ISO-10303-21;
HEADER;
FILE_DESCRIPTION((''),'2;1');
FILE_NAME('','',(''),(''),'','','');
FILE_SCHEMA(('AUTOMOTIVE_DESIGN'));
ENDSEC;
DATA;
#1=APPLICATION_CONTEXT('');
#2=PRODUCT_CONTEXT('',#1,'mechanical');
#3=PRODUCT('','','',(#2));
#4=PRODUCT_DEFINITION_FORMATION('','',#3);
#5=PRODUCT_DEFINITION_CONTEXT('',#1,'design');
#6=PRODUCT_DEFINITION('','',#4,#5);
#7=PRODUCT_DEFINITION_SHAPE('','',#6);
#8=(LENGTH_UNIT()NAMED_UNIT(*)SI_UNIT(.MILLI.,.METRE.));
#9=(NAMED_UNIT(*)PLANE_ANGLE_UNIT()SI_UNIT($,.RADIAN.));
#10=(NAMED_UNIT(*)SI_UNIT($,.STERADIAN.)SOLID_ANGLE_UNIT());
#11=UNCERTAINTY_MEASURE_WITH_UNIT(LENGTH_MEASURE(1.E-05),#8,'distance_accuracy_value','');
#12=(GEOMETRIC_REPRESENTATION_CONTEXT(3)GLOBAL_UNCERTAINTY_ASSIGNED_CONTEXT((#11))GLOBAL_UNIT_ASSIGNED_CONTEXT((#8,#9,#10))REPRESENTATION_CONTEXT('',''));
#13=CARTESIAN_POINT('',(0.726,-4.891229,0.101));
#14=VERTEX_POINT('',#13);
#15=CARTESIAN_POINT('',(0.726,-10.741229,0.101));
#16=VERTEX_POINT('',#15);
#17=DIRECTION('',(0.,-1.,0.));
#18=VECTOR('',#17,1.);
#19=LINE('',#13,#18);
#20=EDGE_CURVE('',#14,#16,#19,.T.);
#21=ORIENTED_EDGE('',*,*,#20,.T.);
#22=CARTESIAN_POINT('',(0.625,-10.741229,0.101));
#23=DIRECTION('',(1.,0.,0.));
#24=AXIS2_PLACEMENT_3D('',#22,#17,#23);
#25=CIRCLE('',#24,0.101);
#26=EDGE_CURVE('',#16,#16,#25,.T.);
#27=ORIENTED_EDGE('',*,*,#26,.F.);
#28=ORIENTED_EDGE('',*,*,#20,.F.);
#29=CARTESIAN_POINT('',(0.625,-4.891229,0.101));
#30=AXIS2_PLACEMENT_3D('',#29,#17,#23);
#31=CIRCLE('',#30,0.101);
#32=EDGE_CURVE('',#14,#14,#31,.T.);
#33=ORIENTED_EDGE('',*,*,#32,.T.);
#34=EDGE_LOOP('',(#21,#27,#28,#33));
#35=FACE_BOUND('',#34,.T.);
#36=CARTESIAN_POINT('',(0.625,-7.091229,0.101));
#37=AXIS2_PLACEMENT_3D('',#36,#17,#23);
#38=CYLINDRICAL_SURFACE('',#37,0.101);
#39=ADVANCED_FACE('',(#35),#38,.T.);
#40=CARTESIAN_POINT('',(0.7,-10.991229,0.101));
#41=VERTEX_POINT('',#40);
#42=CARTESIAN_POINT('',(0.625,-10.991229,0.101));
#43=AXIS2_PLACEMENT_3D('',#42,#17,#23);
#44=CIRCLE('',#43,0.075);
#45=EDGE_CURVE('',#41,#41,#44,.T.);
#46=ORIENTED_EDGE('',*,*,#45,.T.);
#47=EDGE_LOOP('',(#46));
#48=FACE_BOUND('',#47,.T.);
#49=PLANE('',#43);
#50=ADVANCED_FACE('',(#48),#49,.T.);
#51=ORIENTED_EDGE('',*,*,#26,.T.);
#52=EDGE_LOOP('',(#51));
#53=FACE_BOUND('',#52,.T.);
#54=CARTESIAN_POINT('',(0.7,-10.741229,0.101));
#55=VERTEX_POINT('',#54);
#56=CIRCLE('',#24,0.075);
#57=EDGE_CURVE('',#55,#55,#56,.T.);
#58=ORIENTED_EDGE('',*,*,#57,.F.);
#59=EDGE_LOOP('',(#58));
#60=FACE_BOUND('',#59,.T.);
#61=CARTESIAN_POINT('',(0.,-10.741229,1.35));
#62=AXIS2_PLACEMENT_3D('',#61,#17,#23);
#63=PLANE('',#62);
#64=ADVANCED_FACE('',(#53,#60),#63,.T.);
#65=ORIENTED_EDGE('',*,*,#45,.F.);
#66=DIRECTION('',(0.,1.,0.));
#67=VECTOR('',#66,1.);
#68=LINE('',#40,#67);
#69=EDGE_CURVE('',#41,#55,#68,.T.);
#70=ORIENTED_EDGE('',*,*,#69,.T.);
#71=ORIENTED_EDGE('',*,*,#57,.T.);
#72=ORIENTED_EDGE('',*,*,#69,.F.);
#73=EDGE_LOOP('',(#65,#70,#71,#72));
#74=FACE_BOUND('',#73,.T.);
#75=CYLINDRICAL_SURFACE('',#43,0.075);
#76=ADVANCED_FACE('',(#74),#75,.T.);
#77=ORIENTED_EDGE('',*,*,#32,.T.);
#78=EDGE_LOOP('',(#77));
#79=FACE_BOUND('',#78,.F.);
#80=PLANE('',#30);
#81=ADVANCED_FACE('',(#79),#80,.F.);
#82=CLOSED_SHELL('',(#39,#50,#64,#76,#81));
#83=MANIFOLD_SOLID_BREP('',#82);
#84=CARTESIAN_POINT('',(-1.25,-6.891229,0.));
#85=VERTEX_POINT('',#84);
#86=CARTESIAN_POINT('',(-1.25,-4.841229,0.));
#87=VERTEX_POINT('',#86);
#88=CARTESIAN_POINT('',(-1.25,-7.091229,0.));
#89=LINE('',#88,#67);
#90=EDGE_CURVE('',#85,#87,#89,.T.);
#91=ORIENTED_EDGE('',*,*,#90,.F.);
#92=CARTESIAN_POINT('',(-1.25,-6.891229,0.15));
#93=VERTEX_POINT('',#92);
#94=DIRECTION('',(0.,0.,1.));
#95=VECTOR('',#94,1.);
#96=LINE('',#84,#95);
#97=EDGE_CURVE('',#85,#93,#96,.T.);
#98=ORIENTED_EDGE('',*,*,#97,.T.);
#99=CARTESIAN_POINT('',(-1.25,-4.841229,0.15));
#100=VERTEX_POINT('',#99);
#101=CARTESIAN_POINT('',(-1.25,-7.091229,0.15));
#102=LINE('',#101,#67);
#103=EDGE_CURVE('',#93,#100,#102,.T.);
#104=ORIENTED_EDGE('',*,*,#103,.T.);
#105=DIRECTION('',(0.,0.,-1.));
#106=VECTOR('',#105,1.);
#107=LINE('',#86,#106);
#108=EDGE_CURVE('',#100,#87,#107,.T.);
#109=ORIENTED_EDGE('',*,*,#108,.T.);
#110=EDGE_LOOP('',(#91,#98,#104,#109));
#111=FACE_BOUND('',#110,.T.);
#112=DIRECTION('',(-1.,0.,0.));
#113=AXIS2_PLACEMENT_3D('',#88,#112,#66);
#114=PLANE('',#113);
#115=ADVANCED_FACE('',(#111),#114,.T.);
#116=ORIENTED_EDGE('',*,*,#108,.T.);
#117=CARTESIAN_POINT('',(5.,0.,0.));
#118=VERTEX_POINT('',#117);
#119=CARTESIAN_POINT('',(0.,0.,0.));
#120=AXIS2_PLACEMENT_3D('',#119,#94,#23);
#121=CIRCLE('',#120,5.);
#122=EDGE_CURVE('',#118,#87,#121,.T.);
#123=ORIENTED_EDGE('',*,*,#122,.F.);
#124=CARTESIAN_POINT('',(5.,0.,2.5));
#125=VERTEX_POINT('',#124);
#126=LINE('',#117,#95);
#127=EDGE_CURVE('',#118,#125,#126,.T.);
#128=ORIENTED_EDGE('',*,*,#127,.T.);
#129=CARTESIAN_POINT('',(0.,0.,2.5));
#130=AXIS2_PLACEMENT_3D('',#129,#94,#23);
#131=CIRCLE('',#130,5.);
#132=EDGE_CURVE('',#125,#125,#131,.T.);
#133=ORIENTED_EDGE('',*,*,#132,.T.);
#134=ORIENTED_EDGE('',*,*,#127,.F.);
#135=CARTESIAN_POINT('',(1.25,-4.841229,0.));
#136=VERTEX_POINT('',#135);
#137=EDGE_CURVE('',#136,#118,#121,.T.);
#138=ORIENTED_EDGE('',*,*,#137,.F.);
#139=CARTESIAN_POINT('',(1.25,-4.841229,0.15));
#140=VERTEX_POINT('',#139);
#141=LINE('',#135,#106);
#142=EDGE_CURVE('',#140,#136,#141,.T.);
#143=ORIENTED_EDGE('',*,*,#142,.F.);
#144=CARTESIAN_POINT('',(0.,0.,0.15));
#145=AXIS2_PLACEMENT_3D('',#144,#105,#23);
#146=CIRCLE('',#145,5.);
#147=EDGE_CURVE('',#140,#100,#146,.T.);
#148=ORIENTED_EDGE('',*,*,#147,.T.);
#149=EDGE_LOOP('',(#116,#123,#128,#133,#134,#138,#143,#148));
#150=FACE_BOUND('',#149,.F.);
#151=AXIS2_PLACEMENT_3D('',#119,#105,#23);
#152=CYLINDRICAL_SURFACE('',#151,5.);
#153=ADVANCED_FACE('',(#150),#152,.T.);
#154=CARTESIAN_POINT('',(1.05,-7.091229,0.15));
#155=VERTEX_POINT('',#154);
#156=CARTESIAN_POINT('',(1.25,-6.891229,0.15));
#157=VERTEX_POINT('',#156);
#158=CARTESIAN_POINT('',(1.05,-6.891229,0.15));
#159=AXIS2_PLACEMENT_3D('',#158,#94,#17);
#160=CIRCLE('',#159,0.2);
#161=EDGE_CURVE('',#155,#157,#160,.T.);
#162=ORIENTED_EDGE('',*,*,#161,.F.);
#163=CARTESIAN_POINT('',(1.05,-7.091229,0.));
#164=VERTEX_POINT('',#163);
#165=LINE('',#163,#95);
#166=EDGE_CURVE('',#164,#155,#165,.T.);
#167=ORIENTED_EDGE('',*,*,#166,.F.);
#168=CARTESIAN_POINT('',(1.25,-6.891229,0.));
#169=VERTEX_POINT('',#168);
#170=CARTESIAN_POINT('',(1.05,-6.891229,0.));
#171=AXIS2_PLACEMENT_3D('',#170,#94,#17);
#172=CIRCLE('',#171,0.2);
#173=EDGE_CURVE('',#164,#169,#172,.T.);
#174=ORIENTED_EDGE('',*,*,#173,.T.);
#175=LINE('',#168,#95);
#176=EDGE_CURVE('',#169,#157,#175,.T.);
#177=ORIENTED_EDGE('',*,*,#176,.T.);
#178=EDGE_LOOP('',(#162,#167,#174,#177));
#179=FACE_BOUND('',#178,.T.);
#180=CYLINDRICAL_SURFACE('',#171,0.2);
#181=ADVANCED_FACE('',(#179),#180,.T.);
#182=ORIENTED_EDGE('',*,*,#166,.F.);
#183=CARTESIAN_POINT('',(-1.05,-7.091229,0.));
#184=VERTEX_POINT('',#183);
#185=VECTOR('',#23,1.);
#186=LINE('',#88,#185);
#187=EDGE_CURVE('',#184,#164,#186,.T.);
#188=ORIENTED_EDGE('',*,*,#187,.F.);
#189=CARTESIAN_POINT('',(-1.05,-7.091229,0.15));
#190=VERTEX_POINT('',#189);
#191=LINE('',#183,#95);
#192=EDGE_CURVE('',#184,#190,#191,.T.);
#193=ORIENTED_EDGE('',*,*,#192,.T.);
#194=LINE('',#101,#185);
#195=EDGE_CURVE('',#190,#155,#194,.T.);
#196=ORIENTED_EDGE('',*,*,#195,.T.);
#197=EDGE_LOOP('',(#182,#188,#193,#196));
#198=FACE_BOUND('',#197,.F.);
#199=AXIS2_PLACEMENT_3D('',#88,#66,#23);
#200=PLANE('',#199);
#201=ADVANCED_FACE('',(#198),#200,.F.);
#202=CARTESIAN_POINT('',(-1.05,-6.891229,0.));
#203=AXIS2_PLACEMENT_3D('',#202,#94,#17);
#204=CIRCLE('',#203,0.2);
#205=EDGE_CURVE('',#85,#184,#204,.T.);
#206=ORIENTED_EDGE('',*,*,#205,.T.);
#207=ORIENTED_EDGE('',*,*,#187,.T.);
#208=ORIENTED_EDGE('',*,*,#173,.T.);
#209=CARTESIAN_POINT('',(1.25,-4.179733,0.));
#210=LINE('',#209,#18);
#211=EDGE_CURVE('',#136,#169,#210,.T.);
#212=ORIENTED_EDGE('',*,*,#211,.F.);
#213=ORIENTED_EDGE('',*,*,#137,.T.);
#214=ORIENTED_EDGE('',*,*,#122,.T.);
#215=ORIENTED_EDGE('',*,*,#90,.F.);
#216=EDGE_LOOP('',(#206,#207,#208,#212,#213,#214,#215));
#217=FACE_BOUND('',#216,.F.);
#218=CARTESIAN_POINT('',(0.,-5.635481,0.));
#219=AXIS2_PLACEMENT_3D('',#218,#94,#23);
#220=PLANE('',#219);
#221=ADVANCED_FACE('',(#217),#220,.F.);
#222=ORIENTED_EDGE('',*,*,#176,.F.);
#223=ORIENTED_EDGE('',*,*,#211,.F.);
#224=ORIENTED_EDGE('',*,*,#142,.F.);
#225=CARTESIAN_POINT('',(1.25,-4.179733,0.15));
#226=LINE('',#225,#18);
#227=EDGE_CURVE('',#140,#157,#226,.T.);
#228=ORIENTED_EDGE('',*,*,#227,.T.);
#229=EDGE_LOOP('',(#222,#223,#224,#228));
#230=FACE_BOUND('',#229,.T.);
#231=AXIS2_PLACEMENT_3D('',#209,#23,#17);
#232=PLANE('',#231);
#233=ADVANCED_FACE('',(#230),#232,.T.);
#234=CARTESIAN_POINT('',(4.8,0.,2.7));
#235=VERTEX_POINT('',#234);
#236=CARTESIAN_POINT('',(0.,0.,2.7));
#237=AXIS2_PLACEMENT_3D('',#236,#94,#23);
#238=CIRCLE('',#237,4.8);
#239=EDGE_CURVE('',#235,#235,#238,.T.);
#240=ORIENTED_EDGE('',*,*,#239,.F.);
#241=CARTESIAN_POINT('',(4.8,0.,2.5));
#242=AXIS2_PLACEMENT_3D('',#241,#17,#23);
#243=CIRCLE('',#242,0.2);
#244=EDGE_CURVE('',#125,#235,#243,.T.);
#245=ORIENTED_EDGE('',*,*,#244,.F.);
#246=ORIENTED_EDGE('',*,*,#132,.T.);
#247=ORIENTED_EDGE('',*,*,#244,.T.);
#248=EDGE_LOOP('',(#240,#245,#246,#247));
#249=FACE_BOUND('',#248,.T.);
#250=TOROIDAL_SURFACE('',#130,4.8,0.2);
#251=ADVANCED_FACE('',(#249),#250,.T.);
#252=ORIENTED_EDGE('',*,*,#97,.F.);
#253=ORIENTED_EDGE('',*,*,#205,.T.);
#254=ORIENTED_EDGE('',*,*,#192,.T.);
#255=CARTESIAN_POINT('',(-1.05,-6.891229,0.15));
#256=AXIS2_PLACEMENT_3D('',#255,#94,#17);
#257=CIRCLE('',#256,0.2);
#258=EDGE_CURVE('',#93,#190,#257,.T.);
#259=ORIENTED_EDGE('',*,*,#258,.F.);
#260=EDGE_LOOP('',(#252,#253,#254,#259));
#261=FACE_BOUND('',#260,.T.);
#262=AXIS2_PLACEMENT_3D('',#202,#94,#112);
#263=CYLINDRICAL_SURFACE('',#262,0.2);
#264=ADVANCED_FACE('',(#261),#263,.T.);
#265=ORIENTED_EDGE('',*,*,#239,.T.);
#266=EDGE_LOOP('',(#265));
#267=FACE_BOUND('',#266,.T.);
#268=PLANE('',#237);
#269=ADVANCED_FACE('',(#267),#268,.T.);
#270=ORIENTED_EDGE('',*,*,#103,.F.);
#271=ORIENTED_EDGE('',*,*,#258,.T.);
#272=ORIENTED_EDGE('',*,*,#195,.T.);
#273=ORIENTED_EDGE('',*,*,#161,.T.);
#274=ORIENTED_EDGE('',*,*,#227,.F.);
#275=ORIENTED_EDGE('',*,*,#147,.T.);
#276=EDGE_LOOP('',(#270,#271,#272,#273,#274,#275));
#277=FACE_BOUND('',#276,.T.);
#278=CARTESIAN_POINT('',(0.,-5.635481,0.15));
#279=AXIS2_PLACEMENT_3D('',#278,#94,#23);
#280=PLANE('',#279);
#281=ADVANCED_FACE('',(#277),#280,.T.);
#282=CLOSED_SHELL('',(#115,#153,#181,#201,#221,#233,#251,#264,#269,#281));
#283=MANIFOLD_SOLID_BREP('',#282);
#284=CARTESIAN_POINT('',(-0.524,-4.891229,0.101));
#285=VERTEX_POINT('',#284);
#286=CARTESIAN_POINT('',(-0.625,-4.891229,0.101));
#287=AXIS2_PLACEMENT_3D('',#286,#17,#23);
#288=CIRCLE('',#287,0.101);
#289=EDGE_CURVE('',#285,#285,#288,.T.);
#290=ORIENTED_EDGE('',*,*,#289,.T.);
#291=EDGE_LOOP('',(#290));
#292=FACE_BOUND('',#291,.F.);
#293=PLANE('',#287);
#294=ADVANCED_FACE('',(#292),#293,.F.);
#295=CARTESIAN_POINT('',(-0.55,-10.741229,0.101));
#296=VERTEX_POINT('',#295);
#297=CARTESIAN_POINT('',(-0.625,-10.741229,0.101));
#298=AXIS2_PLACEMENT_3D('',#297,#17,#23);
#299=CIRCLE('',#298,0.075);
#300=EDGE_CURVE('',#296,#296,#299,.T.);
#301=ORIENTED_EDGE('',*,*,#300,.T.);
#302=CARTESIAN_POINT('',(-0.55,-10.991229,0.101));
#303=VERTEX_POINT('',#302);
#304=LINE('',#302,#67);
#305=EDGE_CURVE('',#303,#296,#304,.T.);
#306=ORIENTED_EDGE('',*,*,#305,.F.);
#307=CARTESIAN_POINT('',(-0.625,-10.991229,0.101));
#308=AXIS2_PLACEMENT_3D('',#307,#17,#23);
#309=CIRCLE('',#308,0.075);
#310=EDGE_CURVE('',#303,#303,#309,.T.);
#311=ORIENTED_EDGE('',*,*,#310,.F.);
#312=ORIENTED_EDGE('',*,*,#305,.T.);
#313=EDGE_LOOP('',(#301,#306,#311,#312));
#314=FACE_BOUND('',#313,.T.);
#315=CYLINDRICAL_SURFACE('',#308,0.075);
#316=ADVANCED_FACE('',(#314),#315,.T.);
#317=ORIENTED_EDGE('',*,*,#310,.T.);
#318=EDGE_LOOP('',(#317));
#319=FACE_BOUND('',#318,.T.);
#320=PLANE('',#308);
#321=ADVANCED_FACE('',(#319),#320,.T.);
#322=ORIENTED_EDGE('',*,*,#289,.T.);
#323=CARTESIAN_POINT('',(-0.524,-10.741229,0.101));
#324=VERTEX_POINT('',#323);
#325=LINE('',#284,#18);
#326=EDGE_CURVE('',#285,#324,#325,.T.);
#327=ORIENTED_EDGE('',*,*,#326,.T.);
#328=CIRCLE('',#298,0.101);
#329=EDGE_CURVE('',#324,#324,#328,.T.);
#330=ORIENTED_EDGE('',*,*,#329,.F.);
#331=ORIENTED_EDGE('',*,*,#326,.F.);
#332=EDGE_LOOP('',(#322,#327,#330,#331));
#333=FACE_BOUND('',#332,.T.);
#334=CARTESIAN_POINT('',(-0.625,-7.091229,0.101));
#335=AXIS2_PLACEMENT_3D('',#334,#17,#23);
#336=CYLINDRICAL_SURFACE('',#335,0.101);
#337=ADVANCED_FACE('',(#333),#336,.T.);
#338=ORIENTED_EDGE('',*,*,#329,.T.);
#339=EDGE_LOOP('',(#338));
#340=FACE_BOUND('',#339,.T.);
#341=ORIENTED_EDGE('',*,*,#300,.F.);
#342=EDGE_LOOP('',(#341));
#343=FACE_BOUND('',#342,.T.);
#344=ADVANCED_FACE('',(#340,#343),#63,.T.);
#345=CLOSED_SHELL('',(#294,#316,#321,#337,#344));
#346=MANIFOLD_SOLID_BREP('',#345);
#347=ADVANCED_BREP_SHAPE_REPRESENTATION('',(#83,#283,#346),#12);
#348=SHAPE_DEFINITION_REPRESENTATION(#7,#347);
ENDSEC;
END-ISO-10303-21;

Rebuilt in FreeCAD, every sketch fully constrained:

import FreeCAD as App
import Part
import Sketcher
from FreeCAD import Vector
Q = App.Units.Quantity


def edges_at(feature, points):
    """Names of the edges that pass closest to the given points."""
    edges = feature.Shape.Edges
    near = lambda p: min(range(len(edges)), key=lambda i: edges[i].distToShape(Part.Vertex(*p))[0])
    return sorted({f"Edge{near(p) + 1}" for p in points})


def add_polygon(sketch, points):
    """Adds a closed chain of lines whose ends are joined by coincident constraints."""
    first, n = sketch.GeometryCount, len(points)
    for a, b in zip(points, points[1:] + points[:1]):
        sketch.addGeometry(Part.LineSegment(App.Vector(*a, 0), App.Vector(*b, 0)), False)
    for i in range(n):
        sketch.addConstraint(Sketcher.Constraint("Coincident", first + i, 2, first + (i + 1) % n, 1))

doc = App.newDocument("Part")
body = doc.addObject("PartDesign::Body", "Body")

# Sketch on XY plane
sketch1 = body.newObject("Sketcher::SketchObject", "Sketch")
sketch1.AttachmentSupport = (doc.getObject("XY_Plane"), [""])
sketch1.MapMode = "FlatFace"
sketch1.addGeometry(Part.Circle(Vector(0, 0, 0), Vector(0, 0, 1), 5), False)
sketch1.addConstraint([
    Sketcher.Constraint("Coincident", 0, 3, -1, 1),
    Sketcher.Constraint("Diameter", 0, Q("10 mm")),
])
pad1 = body.newObject("PartDesign::Pad", "Pad")
pad1.Profile = sketch1
pad1.Length = 2.7

# Sketch on XY plane
sketch2 = body.newObject("Sketcher::SketchObject", "Sketch001")
sketch2.AttachmentSupport = (doc.getObject("XY_Plane"), [""])
sketch2.MapMode = "FlatFace"
add_polygon(sketch2, [(-1.2, -7.1), (-1.2, -4.2), (1.2, -4.2), (1.2, -7.1)])  # lines 0-3
sketch2.addConstraint([
    Sketcher.Constraint("Vertical", 0),
    Sketcher.Constraint("Horizontal", 1),
    Sketcher.Constraint("Vertical", 2),
    Sketcher.Constraint("Horizontal", 3),
    Sketcher.Constraint("DistanceX", 1, 1, 1, 2, Q("2.5 mm")),
    Sketcher.Constraint("DistanceX", 0, 2, -1, 1, Q("1.25 mm")),
    Sketcher.Constraint("DistanceY", 0, 1, 0, 2, Q("2.911496 mm")),
    Sketcher.Constraint("DistanceY", 2, 2, -1, 1, Q("7.091229 mm")),
])
pad2 = body.newObject("PartDesign::Pad", "Pad001")
pad2.Profile = sketch2
pad2.Length = 0.15
doc.recompute()

fillet = body.newObject("PartDesign::Fillet", "Fillet")
fillet.Base = (pad2, edges_at(pad2, [(1.25, -7.091, 0.075), (-1.25, -7.091, 0.075)]))
fillet.Radius = 0.2
doc.recompute()

fillet2 = body.newObject("PartDesign::Fillet", "Fillet001")
fillet2.Base = (fillet, edges_at(fillet, [(-5, 0, 2.7)]))
fillet2.Radius = 0.2
body2 = doc.addObject("PartDesign::Body", "Body001")

# Sketch on XZ plane
sketch3 = body2.newObject("Sketcher::SketchObject", "Sketch002")
sketch3.AttachmentSupport = (doc.getObject("XZ_Plane001"), [""])
sketch3.MapMode = "FlatFace"
sketch3.AttachmentOffset = App.Placement(Vector(0, 0, 7.091229), App.Rotation())
sketch3.addGeometry(Part.Circle(Vector(-0.62, 0.1, 0), Vector(0, 0, 1), 0.1), False)
sketch3.addConstraint([
    Sketcher.Constraint("Diameter", 0, Q("0.202 mm")),
    Sketcher.Constraint("DistanceX", 0, 3, -1, 1, Q("0.625 mm")),
    Sketcher.Constraint("DistanceY", -1, 1, 0, 3, Q("0.101 mm")),
])
pad3 = body2.newObject("PartDesign::Pad", "Pad002")
pad3.Profile = sketch3
pad3.Type = "TwoLengths"
pad3.Length = 3.9
pad3.Length2 = 2.2
body3 = doc.addObject("PartDesign::Body", "Body002")

# Sketch on XZ plane
sketch4 = body3.newObject("Sketcher::SketchObject", "Sketch003")
sketch4.AttachmentSupport = (doc.getObject("XZ_Plane002"), [""])
sketch4.MapMode = "FlatFace"
sketch4.AttachmentOffset = App.Placement(Vector(0, 0, 7.091229), App.Rotation())
sketch4.addGeometry(Part.Circle(Vector(0.62, 0.1, 0), Vector(0, 0, 1), 0.1), False)
sketch4.addConstraint([
    Sketcher.Constraint("Diameter", 0, Q("0.202 mm")),
    Sketcher.Constraint("DistanceX", -1, 1, 0, 3, Q("0.625 mm")),
    Sketcher.Constraint("DistanceY", -1, 1, 0, 3, Q("0.101 mm")),
])
pad4 = body3.newObject("PartDesign::Pad", "Pad003")
pad4.Profile = sketch4
pad4.Type = "TwoLengths"
pad4.Length = 3.9
pad4.Length2 = 2.2
body4 = doc.addObject("PartDesign::Body", "Body003")

# Sketch on XZ plane
sketch5 = body4.newObject("Sketcher::SketchObject", "Sketch004")
sketch5.AttachmentSupport = (doc.getObject("XZ_Plane003"), [""])
sketch5.MapMode = "FlatFace"
sketch5.AttachmentOffset = App.Placement(Vector(0, 0, 10.991229), App.Rotation())
add_polygon(sketch5, [(-7.91, 5.61), (-7.91, -2.9), (7.91, -2.9), (7.91, 5.61)])  # lines 0-3
sketch5.addGeometry(Part.Circle(Vector(-0.62, 0.1, 0), Vector(0, 0, 1), 0.07), False)  # 4
sketch5.addGeometry(Part.Circle(Vector(0.62, 0.1, 0), Vector(0, 0, 1), 0.07), False)  # 5
sketch5.addConstraint([
    Sketcher.Constraint("Vertical", 0),
    Sketcher.Constraint("Horizontal", 1),
    Sketcher.Constraint("Vertical", 2),
    Sketcher.Constraint("Horizontal", 3),
    Sketcher.Constraint("Equal", 4, 5),
    Sketcher.Constraint("Symmetric", 4, 3, 5, 3, -2),
    Sketcher.Constraint("Diameter", 4, Q("0.15 mm")),
    Sketcher.Constraint("DistanceX", 1, 1, 1, 2, Q("15.81 mm")),
    Sketcher.Constraint("DistanceY", 0, 2, 0, 1, Q("8.51 mm")),
    Sketcher.Constraint("DistanceX", 4, 3, 5, 3, Q("1.25 mm")),
    Sketcher.Constraint("DistanceX", 0, 2, 4, 3, Q("7.28 mm")),
    Sketcher.Constraint("DistanceY", -1, 1, 4, 3, Q("0.101 mm")),
    Sketcher.Constraint("DistanceY", 0, 2, -1, 1, Q("2.905 mm")),
])
pad5 = body4.newObject("PartDesign::Pad", "Pad004")
pad5.Profile = sketch5
pad5.Length = 0.25
pad5.Reversed = True
doc.recompute()

body5 = doc.addObject("PartDesign::Body", "Body004")
body5.BaseFeature = body4
boolean = body2.newObject("PartDesign::Boolean", "Boolean")
boolean.Type = "Cut"
boolean.addObjects([body5])
doc.recompute()

boolean2 = body3.newObject("PartDesign::Boolean", "Boolean001")
boolean2.Type = "Cut"
boolean2.addObjects([body4])

doc.recompute()
